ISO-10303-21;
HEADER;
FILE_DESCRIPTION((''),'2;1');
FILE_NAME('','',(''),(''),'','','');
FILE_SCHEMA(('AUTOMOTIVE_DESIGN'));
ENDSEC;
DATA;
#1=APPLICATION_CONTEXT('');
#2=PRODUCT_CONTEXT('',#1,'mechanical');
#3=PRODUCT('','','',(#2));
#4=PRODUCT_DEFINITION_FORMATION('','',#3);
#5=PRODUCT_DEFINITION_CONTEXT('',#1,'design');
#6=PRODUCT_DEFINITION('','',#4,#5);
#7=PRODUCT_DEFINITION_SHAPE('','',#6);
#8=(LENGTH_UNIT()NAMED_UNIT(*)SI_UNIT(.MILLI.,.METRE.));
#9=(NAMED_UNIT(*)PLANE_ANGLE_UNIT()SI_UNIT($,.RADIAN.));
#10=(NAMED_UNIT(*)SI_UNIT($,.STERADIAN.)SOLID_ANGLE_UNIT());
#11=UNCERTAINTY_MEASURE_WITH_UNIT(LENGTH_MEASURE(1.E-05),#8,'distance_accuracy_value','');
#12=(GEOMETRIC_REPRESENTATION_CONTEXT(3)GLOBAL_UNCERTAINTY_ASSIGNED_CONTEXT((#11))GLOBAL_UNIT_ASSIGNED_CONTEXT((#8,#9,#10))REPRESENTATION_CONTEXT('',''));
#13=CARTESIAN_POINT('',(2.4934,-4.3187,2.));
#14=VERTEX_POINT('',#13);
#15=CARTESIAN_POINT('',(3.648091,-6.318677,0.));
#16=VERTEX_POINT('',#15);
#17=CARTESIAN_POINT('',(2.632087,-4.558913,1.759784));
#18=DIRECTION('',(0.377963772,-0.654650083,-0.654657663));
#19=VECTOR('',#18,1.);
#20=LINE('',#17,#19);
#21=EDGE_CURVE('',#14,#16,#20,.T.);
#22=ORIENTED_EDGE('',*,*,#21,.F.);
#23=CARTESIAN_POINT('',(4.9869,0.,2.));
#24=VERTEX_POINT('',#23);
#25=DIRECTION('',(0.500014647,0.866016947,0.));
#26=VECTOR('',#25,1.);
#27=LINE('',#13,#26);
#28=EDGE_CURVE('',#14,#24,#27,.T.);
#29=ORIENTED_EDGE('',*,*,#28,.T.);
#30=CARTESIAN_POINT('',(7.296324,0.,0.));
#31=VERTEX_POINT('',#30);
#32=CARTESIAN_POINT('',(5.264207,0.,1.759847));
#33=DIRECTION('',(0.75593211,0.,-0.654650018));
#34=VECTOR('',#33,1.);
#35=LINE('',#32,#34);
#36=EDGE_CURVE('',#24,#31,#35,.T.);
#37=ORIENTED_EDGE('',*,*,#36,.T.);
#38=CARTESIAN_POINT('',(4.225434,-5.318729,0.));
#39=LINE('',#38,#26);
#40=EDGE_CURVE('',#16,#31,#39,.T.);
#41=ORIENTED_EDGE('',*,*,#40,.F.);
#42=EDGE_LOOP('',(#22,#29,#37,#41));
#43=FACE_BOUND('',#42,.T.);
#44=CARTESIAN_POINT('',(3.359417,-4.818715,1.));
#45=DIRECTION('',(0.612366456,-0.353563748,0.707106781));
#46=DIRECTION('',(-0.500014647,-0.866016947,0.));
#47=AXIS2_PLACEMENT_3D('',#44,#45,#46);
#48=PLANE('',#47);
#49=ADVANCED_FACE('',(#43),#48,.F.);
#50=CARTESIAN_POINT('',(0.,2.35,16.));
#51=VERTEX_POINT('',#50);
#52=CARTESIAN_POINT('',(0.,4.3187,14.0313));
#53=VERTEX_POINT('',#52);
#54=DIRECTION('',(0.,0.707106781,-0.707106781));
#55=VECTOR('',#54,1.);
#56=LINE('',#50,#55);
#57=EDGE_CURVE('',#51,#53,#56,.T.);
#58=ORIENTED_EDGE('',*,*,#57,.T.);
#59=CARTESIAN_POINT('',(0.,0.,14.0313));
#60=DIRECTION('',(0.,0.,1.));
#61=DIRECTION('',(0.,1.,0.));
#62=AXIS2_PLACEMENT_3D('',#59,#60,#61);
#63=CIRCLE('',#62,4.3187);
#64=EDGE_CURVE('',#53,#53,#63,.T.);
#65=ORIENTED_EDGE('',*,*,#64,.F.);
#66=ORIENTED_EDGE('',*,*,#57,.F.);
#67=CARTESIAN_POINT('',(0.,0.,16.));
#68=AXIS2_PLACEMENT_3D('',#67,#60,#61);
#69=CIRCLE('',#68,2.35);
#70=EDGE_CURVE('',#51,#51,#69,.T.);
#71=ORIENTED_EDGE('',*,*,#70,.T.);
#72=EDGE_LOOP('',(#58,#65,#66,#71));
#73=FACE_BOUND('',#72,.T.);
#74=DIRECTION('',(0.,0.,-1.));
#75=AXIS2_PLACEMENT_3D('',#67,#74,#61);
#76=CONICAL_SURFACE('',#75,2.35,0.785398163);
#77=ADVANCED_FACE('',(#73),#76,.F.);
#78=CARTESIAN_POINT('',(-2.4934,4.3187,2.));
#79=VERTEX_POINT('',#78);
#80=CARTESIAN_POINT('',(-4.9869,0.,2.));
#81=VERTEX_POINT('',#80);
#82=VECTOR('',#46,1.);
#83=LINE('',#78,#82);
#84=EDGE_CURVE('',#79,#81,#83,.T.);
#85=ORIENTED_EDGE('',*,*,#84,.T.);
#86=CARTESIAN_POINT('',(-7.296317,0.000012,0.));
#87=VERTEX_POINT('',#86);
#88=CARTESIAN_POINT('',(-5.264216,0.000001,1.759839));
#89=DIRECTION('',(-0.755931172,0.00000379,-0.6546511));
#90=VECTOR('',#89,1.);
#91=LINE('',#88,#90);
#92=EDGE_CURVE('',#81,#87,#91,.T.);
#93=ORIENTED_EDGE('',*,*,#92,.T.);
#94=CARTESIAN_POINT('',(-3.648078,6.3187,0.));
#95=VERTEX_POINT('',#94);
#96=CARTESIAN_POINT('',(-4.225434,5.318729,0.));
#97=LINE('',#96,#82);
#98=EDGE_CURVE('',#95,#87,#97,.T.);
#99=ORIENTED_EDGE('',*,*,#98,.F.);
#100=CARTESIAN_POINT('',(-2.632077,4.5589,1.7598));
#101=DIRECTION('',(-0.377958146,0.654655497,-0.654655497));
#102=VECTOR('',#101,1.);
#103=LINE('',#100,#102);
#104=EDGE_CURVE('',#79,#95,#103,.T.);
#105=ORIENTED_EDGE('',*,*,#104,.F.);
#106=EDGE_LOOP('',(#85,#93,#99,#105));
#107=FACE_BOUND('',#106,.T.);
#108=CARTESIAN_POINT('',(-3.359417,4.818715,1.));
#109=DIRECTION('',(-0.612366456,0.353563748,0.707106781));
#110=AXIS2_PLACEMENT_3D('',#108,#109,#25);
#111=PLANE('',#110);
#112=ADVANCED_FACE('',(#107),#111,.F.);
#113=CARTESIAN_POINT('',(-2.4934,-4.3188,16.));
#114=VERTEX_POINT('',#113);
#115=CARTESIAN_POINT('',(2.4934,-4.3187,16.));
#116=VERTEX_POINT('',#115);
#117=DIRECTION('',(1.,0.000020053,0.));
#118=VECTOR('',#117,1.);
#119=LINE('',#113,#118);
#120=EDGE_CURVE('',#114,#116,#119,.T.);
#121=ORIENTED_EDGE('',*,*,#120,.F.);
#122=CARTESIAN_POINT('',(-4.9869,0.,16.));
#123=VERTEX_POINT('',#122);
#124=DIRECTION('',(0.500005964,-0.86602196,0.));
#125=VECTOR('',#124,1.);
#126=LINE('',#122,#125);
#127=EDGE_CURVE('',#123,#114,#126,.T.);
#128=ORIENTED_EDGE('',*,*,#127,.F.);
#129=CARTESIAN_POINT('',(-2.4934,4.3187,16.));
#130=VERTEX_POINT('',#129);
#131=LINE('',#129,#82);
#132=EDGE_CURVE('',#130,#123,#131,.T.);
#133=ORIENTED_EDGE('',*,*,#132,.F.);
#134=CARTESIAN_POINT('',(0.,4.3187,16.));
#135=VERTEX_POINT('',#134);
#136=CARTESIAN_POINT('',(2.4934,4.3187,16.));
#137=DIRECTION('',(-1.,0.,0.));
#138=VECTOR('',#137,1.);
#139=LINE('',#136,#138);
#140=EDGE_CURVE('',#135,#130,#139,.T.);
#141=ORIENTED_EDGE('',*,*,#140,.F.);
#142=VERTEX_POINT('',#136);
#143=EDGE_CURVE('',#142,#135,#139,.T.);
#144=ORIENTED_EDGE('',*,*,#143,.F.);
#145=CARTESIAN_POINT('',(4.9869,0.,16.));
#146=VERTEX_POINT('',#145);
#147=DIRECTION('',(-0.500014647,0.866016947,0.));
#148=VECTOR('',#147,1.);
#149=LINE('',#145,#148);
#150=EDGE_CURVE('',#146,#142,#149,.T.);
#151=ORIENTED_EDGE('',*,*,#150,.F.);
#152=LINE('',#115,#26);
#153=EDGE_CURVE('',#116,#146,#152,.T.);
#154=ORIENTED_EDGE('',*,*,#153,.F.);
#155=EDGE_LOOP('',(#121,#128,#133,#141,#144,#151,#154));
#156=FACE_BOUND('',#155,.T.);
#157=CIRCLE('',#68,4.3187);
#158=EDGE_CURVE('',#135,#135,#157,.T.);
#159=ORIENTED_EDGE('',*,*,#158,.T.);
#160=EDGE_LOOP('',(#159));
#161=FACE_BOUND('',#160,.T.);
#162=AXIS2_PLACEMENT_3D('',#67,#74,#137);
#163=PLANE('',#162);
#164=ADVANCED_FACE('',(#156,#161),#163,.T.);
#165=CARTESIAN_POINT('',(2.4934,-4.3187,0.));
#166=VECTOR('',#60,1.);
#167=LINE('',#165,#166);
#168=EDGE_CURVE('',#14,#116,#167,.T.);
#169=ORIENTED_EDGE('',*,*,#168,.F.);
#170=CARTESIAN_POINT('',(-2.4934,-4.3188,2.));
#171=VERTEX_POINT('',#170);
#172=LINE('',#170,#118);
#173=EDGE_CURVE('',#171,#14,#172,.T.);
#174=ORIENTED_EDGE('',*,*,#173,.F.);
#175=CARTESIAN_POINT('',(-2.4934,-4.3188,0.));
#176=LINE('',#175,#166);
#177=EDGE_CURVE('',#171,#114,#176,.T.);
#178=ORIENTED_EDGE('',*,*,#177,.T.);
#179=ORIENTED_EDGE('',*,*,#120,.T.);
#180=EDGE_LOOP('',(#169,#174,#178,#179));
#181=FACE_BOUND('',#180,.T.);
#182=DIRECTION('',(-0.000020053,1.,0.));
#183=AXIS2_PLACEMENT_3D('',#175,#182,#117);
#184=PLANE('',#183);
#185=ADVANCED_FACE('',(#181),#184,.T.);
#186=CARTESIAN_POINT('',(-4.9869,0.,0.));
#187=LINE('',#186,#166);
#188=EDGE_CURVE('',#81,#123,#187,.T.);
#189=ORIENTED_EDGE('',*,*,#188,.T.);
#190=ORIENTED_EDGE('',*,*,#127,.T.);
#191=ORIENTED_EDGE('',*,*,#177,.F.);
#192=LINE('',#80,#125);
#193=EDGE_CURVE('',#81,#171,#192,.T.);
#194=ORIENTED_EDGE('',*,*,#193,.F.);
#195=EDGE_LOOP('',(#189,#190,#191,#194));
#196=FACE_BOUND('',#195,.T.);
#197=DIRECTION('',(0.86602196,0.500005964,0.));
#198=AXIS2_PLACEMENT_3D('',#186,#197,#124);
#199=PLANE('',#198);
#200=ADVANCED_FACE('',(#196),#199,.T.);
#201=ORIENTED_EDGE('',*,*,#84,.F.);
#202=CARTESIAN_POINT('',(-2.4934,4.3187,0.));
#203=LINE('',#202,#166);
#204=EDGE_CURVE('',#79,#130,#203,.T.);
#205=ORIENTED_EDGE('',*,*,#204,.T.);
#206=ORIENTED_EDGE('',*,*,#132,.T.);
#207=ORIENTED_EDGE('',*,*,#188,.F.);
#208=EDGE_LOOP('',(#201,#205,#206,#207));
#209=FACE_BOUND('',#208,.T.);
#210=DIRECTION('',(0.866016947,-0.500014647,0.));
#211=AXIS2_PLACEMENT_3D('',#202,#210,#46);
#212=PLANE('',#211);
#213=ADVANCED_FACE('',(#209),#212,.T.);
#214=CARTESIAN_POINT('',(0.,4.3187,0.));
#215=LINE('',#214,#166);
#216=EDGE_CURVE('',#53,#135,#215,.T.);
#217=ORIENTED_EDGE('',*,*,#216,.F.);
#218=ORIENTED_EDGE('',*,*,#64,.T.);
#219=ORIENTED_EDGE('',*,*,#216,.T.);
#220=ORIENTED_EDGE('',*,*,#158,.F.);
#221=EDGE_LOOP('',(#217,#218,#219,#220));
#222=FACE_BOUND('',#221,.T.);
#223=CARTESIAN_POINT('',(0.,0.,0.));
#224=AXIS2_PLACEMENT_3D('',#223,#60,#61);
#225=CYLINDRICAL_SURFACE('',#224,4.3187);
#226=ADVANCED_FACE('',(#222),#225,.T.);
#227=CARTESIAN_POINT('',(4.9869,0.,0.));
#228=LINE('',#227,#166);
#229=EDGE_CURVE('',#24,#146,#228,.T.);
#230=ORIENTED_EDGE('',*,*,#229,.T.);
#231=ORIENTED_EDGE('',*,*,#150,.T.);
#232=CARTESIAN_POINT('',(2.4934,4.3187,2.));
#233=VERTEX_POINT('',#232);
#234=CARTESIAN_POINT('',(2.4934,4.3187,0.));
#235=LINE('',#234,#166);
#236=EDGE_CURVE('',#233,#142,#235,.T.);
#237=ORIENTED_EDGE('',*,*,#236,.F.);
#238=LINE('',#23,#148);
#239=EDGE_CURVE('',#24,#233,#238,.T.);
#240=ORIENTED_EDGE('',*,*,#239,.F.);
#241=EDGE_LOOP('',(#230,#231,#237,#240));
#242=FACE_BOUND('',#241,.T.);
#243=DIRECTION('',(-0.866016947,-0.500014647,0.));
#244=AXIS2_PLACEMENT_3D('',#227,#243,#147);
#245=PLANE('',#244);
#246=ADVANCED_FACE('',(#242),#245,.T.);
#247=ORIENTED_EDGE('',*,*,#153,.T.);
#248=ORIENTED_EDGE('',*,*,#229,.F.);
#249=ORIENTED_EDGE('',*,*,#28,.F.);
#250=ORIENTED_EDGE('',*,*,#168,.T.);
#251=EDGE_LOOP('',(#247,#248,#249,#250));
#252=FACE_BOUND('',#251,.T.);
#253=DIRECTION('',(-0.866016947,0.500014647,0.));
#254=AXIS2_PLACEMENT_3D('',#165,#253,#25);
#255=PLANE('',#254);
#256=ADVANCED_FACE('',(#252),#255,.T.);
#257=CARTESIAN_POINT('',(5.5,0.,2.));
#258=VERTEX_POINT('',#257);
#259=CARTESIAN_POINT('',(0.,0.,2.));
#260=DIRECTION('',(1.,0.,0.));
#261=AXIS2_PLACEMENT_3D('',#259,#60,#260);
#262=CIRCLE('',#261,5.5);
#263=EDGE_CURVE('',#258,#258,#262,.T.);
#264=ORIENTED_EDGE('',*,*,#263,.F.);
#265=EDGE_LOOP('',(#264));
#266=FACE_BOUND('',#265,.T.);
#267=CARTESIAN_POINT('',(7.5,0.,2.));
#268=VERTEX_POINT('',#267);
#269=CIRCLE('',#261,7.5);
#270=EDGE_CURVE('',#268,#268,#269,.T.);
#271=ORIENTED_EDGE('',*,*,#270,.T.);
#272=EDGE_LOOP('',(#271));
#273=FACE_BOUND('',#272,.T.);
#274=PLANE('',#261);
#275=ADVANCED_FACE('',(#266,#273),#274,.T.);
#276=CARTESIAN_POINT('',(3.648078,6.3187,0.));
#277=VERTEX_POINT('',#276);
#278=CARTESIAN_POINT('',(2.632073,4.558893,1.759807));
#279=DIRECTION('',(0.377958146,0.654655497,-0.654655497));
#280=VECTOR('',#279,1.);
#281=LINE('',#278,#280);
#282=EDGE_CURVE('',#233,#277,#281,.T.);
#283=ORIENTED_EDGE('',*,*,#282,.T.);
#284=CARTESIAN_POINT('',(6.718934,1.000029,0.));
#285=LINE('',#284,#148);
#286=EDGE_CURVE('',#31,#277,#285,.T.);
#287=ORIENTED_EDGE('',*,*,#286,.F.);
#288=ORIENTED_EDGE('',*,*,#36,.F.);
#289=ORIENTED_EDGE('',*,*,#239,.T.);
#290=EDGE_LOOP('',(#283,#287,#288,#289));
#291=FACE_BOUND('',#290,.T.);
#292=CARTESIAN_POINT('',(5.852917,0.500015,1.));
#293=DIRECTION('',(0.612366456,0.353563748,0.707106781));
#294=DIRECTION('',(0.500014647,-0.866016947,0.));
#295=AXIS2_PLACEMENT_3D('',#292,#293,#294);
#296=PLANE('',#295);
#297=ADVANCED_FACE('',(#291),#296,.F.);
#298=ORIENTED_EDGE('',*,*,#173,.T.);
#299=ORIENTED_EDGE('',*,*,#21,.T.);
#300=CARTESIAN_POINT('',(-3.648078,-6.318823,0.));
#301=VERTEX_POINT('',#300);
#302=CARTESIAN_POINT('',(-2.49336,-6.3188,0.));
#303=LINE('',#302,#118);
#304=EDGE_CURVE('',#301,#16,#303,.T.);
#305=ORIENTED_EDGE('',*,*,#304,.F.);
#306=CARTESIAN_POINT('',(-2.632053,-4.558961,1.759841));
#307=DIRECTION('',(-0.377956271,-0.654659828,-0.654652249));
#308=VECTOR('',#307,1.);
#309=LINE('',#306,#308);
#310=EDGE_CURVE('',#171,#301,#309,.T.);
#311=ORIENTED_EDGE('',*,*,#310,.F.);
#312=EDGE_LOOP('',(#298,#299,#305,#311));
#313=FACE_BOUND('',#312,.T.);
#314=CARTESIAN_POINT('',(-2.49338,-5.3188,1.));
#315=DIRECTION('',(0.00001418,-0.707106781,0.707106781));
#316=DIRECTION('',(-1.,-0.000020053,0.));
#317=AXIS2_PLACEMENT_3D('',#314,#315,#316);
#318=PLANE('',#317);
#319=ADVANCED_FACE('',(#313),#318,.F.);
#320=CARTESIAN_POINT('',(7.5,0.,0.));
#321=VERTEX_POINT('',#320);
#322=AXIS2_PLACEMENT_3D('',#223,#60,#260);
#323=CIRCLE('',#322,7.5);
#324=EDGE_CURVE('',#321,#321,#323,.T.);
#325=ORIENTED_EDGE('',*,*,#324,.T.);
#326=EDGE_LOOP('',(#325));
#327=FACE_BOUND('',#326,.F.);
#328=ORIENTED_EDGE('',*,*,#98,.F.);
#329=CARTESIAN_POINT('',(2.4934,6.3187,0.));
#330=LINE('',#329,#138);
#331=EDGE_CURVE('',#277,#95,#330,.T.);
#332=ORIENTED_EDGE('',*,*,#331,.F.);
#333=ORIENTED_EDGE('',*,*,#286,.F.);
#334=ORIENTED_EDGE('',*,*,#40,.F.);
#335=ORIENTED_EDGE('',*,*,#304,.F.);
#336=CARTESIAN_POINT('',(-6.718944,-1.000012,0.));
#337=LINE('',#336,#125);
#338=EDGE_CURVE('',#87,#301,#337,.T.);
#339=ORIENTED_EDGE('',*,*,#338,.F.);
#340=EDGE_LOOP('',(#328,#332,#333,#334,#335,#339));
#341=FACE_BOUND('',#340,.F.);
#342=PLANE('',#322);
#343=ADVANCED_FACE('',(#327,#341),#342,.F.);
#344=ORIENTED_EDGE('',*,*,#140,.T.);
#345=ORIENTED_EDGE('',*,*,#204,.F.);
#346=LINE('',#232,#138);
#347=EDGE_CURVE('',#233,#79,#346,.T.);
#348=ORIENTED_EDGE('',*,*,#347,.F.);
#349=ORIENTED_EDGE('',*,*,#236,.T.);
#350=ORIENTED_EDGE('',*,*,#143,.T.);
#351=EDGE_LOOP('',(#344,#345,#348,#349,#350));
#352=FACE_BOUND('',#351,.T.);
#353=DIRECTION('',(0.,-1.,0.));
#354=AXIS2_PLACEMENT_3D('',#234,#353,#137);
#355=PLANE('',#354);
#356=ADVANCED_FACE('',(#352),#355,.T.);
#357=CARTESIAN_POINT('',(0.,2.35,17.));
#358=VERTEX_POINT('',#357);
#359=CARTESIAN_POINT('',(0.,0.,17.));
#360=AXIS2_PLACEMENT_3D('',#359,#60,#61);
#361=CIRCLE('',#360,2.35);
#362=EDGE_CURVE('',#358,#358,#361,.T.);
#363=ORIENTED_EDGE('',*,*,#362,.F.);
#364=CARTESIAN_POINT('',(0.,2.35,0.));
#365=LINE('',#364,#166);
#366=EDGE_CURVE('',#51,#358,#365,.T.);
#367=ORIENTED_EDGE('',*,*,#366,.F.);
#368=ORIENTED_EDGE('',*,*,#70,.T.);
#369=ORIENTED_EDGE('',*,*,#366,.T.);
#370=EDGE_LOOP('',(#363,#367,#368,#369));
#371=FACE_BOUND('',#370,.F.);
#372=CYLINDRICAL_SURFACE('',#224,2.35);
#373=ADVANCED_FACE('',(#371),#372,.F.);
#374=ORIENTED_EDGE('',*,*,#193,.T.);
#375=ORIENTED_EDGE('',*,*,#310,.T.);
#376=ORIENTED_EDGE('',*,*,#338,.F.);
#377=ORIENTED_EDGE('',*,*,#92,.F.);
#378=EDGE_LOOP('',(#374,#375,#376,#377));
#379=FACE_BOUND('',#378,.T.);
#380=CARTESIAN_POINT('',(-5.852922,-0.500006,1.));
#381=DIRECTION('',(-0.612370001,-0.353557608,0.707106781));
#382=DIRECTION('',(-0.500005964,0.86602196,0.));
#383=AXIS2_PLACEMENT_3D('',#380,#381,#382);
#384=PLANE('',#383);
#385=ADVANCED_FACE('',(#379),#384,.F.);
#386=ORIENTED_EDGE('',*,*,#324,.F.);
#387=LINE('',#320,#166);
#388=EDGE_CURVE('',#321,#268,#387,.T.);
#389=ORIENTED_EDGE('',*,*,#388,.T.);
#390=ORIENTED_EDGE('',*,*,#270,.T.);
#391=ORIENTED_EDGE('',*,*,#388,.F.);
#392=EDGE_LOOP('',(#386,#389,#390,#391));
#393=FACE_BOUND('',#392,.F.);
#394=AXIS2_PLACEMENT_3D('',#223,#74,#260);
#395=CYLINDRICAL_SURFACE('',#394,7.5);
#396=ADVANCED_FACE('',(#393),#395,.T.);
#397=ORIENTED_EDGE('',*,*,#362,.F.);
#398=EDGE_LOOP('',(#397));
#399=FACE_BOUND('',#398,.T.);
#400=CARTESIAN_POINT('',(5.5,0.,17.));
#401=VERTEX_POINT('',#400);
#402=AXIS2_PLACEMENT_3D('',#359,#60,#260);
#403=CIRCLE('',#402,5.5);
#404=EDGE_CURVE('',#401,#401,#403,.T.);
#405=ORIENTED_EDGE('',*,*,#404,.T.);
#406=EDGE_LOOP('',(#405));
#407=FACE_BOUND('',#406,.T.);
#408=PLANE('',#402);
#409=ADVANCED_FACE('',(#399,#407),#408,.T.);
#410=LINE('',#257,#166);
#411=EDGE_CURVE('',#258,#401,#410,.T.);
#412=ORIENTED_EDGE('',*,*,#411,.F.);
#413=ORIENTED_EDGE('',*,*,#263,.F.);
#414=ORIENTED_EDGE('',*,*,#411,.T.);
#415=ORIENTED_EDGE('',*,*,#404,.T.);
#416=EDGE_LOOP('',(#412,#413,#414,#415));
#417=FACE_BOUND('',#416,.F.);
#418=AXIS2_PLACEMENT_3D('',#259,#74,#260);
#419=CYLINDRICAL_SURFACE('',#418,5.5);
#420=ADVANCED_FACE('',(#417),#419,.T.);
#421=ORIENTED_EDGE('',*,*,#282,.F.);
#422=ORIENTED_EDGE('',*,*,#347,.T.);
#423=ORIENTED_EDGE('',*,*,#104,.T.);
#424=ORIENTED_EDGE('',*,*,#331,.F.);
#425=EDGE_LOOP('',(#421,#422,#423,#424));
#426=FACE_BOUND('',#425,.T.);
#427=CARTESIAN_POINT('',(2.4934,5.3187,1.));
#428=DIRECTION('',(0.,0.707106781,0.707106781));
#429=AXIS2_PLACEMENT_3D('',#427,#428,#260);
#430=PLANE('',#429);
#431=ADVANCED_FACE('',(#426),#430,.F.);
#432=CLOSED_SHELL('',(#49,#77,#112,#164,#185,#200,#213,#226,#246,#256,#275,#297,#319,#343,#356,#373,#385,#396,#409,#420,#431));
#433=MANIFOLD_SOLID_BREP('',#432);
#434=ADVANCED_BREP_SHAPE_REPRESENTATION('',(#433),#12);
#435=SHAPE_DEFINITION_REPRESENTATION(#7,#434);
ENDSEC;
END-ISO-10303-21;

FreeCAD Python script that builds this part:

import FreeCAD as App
import Part
import Sketcher
from FreeCAD import Vector
Q = App.Units.Quantity


def edges_at(feature, points):
    """Names of the edges that pass closest to the given points."""
    edges = feature.Shape.Edges
    near = lambda p: min(range(len(edges)), key=lambda i: edges[i].distToShape(Part.Vertex(*p))[0])
    return sorted({f"Edge{near(p) + 1}" for p in points})


def add_polygon(sketch, points):
    """Adds a closed chain of lines whose ends are joined by coincident constraints."""
    first, n = sketch.GeometryCount, len(points)
    for a, b in zip(points, points[1:] + points[:1]):
        sketch.addGeometry(Part.LineSegment(App.Vector(*a, 0), App.Vector(*b, 0)), False)
    for i in range(n):
        sketch.addConstraint(Sketcher.Constraint("Coincident", first + i, 2, first + (i + 1) % n, 1))

doc = App.newDocument("Part")
body = doc.addObject("PartDesign::Body", "Body")

sketch1 = doc.addObject("Sketcher::SketchObject", "Sketch")
body.addObject(sketch1)
sketch1.AttachmentSupport = (doc.XY_Plane, [""])
sketch1.MapMode = "FlatFace"
sketch1.addGeometry(Part.Circle(Vector(0, 0, 0), Vector(0, 0, 1), 7.5), False)
sketch1.addConstraint(Sketcher.Constraint("Coincident", 0, 3, -1, 1))
sketch1.addConstraint(Sketcher.Constraint("Diameter", 0, 15.0))
pad1 = doc.addObject("PartDesign::Pad", "Pad")
body.addObject(pad1)
pad1.Profile = sketch1
pad1.Length = 2

sketch2 = doc.addObject("Sketcher::SketchObject", "Sketch001")
body.addObject(sketch2)
sketch2.AttachmentSupport = (doc.XY_Plane, [""])
sketch2.MapMode = "FlatFace"
sketch2.AttachmentOffset = App.Placement(Vector(0, 0, 2), App.Rotation())
sketch2.addGeometry(Part.Circle(Vector(0, 0, 0), Vector(0, 0, 1), 5.5), False)
sketch2.addConstraint(Sketcher.Constraint("Coincident", 0, 3, -1, 1))
sketch2.addConstraint(Sketcher.Constraint("Diameter", 0, 11.0))
pad2 = doc.addObject("PartDesign::Pad", "Pad001")
body.addObject(pad2)
pad2.Profile = sketch2
pad2.Length = 15

sketch3 = doc.addObject("Sketcher::SketchObject", "Sketch002")
body.addObject(sketch3)
sketch3.AttachmentSupport = (doc.XY_Plane, [""])
sketch3.MapMode = "FlatFace"
sketch3.addGeometry(Part.Circle(Vector(0, 0, 0), Vector(0, 0, 1), 2.35), False)
sketch3.addConstraint(Sketcher.Constraint("Coincident", 0, 3, -1, 1))
sketch3.addConstraint(Sketcher.Constraint("Diameter", 0, 4.7))
doc.recompute()
hole = doc.addObject("PartDesign::Hole", "Hole")
body.addObject(hole)
hole.Profile = sketch3
hole.ThreadType = "None"
hole.Diameter = 4.7
hole.DepthType = "ThroughAll"
hole.Reversed = True

sketch4 = doc.addObject("Sketcher::SketchObject", "Sketch003")
body.addObject(sketch4)
sketch4.AttachmentSupport = (doc.XY_Plane, [""])
sketch4.MapMode = "FlatFace"
add_polygon(sketch4, [(-4.9869, 0), (-2.4934, 4.3187), (2.4934, 4.3187), (4.9869, 0), (2.4934, -4.3187), (-2.4934, -4.3188)])
sketch4.addGeometry(Part.Circle(Vector(0, 0, 0), Vector(0, 0, 1), 2.35), False)
sketch4.addConstraint(Sketcher.Constraint("Horizontal", 1))
sketch4.addConstraint(Sketcher.Constraint("Horizontal", 4))
sketch4.addConstraint(Sketcher.Constraint("Coincident", 6, 3, -1, 1))
sketch4.addConstraint(Sketcher.Constraint("Symmetric", 0, 2, 3, 2, -1, 1))
sketch4.addConstraint(Sketcher.Constraint("Symmetric", 2, 2, 5, 2, -1, 1))
sketch4.addConstraint(Sketcher.Constraint("PointOnObject", 2, 2, -1))
sketch4.addConstraint(Sketcher.Constraint("Parallel", 2, 5))
sketch4.addConstraint(Sketcher.Constraint("Vertical", 1, 2, 3, 2))
sketch4.addConstraint(Sketcher.Constraint("Diameter", 6, 4.7))
sketch4.addConstraint(Sketcher.Constraint("Angle", 0, Q("59.999 deg")))
sketch4.addConstraint(Sketcher.Constraint("DistanceY", 3, 2, 1, 2, 8.6374))
sketch4.addConstraint(Sketcher.Constraint("DistanceX", 1, 1, 1, 2, 4.9868))
pocket1 = doc.addObject("PartDesign::Pocket", "Pocket")
body.addObject(pocket1)
pocket1.Profile = sketch4
pocket1.Length = 16
pocket1.Reversed = True

sketch5 = doc.addObject("Sketcher::SketchObject", "Sketch004")
body.addObject(sketch5)
sketch5.AttachmentSupport = (doc.YZ_Plane, [""])
sketch5.MapMode = "FlatFace"
add_polygon(sketch5, [(2.35, 16), (4.3187, 14.0313), (4.3187, 16)])
sketch5.addConstraint(Sketcher.Constraint("Vertical", 1))
sketch5.addConstraint(Sketcher.Constraint("Horizontal", 2))
sketch5.addConstraint(Sketcher.Constraint("Equal", 2, 1))
sketch5.addConstraint(Sketcher.Constraint("DistanceY", -1, 1, 1, 2, 16.0))
sketch5.addConstraint(Sketcher.Constraint("DistanceX", -1, 1, 2, 2, 2.35))
sketch5.addConstraint(Sketcher.Constraint("DistanceX", 2, 2, 2, 1, 1.9687))
revolution = doc.addObject("PartDesign::Revolution", "Revolution")
body.addObject(revolution)
revolution.Profile = sketch5
revolution.ReferenceAxis = (sketch5, ["V_Axis"])
revolution.Angle = 360
doc.recompute()

chamfer = doc.addObject("PartDesign::Chamfer", "Chamfer")
body.addObject(chamfer)
chamfer.Base = (revolution, edges_at(revolution, [
    (0, -4.319, 0),
    (3.74, -2.159, 0),
    (3.74, 2.159, 0),
    (0, 4.319, 0),
    (-3.74, 2.159, 0),
    (-3.74, -2.159, 0),
]))
chamfer.Size = 2

doc.recompute()
